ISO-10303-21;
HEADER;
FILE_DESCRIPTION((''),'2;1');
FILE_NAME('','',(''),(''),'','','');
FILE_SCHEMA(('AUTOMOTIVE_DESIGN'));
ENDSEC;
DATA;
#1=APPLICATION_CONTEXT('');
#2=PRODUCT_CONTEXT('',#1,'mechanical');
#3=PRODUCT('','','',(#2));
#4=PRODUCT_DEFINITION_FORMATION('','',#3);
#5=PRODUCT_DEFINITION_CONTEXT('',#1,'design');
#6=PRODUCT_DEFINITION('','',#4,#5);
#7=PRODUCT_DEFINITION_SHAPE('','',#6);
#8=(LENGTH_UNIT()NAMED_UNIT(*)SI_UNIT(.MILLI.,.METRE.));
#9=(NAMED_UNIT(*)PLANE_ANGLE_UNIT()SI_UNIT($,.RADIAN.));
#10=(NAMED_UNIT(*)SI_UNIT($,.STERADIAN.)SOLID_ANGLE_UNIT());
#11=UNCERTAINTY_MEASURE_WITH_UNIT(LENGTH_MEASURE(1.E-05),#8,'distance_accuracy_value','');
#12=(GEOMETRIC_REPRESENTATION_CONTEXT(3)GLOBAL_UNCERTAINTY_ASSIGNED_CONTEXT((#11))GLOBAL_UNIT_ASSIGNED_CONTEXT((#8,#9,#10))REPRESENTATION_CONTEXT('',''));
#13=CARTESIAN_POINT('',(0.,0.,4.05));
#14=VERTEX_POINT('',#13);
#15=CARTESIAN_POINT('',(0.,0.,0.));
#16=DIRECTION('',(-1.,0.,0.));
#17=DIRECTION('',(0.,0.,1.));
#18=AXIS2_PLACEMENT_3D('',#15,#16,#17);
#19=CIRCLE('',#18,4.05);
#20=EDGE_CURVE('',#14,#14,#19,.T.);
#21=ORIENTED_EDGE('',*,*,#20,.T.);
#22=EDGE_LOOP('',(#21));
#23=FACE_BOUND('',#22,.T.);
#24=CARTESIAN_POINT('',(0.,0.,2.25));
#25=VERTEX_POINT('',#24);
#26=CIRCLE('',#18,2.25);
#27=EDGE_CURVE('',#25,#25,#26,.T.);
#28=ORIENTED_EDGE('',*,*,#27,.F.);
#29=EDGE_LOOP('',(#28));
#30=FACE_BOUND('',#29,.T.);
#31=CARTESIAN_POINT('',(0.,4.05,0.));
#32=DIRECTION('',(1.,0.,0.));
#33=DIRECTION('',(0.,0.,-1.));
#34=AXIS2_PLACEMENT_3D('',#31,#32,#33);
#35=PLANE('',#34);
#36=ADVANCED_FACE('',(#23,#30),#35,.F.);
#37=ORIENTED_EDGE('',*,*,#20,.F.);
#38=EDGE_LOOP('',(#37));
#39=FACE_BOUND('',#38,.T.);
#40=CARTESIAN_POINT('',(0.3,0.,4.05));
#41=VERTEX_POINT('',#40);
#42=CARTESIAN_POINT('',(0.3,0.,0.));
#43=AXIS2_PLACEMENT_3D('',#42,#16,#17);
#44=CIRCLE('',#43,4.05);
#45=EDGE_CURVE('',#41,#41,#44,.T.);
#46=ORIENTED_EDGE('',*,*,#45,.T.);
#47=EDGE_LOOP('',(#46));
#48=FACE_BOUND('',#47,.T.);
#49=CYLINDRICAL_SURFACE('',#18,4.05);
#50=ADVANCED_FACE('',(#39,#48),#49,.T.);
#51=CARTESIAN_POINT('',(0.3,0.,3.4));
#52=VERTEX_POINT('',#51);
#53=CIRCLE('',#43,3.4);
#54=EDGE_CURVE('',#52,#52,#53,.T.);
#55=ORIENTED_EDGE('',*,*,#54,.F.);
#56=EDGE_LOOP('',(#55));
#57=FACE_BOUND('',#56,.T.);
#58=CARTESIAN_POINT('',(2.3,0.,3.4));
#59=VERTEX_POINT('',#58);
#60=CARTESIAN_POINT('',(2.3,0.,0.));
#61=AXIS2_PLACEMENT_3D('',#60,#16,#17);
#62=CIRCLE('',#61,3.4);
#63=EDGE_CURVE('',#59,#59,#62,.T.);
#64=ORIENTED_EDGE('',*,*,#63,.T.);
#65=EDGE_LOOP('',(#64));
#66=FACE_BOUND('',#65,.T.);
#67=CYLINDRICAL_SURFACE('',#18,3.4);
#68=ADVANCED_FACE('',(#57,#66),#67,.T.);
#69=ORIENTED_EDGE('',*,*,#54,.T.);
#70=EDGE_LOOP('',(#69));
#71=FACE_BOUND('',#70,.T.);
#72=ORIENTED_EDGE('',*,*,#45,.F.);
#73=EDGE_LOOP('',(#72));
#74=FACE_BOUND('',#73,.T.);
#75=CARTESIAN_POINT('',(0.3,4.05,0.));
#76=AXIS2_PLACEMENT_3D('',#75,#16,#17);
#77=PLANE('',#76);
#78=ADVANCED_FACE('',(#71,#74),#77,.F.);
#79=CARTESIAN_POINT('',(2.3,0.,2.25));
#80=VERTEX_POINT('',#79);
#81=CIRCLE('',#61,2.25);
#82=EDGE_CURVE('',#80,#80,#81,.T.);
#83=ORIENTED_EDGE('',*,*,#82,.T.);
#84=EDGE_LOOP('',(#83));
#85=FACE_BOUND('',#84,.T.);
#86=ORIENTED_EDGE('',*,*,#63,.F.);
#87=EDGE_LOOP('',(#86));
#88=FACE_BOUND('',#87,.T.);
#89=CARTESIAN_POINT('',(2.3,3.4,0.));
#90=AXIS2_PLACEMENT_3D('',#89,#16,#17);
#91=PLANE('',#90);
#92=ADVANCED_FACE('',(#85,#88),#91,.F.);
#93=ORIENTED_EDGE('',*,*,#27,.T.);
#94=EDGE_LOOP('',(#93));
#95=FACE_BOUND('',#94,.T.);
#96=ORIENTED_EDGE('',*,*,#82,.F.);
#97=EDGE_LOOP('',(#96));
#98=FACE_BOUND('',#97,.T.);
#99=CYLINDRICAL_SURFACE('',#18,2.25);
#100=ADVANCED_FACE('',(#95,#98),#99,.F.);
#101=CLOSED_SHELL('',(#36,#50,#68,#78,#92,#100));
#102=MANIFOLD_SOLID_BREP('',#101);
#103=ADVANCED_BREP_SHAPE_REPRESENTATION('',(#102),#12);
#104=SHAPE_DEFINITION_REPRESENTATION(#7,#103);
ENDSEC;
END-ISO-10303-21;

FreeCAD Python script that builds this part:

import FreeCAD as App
import Part
import Sketcher
from FreeCAD import Vector


def add_polygon(sketch, points):
    """Adds a closed chain of lines whose ends are joined by coincident constraints."""
    first, n = sketch.GeometryCount, len(points)
    for a, b in zip(points, points[1:] + points[:1]):
        sketch.addGeometry(Part.LineSegment(App.Vector(*a, 0), App.Vector(*b, 0)), False)
    for i in range(n):
        sketch.addConstraint(Sketcher.Constraint("Coincident", first + i, 2, first + (i + 1) % n, 1))

doc = App.newDocument("Part")
body = doc.addObject("PartDesign::Body", "Body")

# Sketch on XY plane
sketch1 = body.newObject("Sketcher::SketchObject", "Sketch")
sketch1.AttachmentSupport = (doc.getObject("XY_Plane"), [""])
sketch1.MapMode = "FlatFace"
add_polygon(sketch1, [(0.3, 4.05), (0, 4.05), (0, 2.25), (2.3, 2.25), (2.3, 3.4), (0.3, 3.4)])  # lines 0-5
sketch1.addConstraint(Sketcher.Constraint("Horizontal", 0))
sketch1.addConstraint(Sketcher.Constraint("Vertical", 1))
sketch1.addConstraint(Sketcher.Constraint("Horizontal", 2))
sketch1.addConstraint(Sketcher.Constraint("Vertical", 3))
sketch1.addConstraint(Sketcher.Constraint("Horizontal", 4))
sketch1.addConstraint(Sketcher.Constraint("Vertical", 5))
sketch1.addConstraint(Sketcher.Constraint("PointOnObject", 0, 2, -2))
sketch1.addConstraint(Sketcher.Constraint("DistanceX", 4, 2, 4, 1, 2.0))
sketch1.addConstraint(Sketcher.Constraint("DistanceX", 0, 2, 0, 1, 0.3))
sketch1.addConstraint(Sketcher.Constraint("DistanceY", 1, 2, 1, 1, 1.8))
sketch1.addConstraint(Sketcher.Constraint("DistanceY", 3, 1, 3, 2, 1.15))
sketch1.addConstraint(Sketcher.Constraint("DistanceY", -1, 1, 3, 2, 3.4))
revolution = body.newObject("PartDesign::Revolution", "Revolution")
revolution.Profile = sketch1
revolution.ReferenceAxis = (sketch1, ["H_Axis"])
revolution.Angle = 360

doc.recompute()
